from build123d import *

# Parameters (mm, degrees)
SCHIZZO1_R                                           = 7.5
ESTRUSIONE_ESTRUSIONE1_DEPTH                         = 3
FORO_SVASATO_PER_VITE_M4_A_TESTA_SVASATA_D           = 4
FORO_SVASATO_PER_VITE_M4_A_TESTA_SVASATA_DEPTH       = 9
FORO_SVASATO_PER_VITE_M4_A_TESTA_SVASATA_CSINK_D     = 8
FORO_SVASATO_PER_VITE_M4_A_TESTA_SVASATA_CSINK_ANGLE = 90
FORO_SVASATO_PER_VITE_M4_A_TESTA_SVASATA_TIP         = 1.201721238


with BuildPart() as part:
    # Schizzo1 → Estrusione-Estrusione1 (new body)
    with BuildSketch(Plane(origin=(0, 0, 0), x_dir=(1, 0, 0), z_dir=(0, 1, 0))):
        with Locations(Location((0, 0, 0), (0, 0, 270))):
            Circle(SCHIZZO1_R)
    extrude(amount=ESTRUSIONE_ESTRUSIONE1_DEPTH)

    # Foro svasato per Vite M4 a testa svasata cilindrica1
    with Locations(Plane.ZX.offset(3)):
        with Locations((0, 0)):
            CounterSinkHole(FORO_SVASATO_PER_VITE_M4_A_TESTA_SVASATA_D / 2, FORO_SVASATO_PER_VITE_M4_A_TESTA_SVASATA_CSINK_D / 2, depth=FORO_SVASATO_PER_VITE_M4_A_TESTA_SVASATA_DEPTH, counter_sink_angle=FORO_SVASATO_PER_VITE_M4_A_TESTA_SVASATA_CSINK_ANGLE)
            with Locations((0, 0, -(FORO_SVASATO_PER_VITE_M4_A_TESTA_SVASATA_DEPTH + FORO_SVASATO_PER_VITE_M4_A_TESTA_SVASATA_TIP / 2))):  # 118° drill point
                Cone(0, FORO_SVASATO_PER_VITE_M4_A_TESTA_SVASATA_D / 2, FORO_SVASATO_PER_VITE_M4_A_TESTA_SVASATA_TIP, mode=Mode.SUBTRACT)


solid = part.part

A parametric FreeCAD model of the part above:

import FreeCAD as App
import Part
import Sketcher
from FreeCAD import Vector
Q = App.Units.Quantity

doc = App.newDocument("Part")
body = doc.addObject("PartDesign::Body", "Body")

# Sketch on XZ plane
sketch1 = doc.addObject("Sketcher::SketchObject", "Sketch")
body.addObject(sketch1)
sketch1.AttachmentSupport = (doc.XZ_Plane, [""])
sketch1.MapMode = "FlatFace"
sketch1.addGeometry(Part.Circle(Vector(0, 0, 0), Vector(0, 0, 1), 8), False)
sketch1.addConstraint(Sketcher.Constraint("Coincident", 0, 3, -1, 1))
sketch1.addConstraint(Sketcher.Constraint("Diameter", 0, Q("15 mm")))
pad1 = doc.addObject("PartDesign::Pad", "Pad")
body.addObject(pad1)
pad1.Profile = sketch1
pad1.Length = 3
pad1.Reversed = True

# Sketch on XZ plane
sketch2 = doc.addObject("Sketcher::SketchObject", "Sketch001")
body.addObject(sketch2)
sketch2.AttachmentSupport = (doc.XZ_Plane, [""])
sketch2.MapMode = "FlatFace"
sketch2.AttachmentOffset = App.Placement(Vector(0, 0, -3), App.Rotation())
sketch2.addGeometry(Part.Circle(Vector(0, 0, 0), Vector(0, 0, 1), 2), False)
sketch2.addConstraint(Sketcher.Constraint("Coincident", 0, 3, -1, 1))
sketch2.addConstraint(Sketcher.Constraint("Diameter", 0, Q("4 mm")))
doc.recompute()
hole = doc.addObject("PartDesign::Hole", "Hole")
body.addObject(hole)
hole.Profile = sketch2
hole.ThreadType = "None"
hole.Diameter = 4
hole.DepthType = "Dimension"
hole.Depth = 9
hole.DrillPoint = "Angled"
hole.DrillPointAngle = 118
hole.HoleCutType = "Countersink"
hole.HoleCutDiameter = 8
hole.HoleCutCountersinkAngle = 90
hole.Reversed = True

doc.recompute()
